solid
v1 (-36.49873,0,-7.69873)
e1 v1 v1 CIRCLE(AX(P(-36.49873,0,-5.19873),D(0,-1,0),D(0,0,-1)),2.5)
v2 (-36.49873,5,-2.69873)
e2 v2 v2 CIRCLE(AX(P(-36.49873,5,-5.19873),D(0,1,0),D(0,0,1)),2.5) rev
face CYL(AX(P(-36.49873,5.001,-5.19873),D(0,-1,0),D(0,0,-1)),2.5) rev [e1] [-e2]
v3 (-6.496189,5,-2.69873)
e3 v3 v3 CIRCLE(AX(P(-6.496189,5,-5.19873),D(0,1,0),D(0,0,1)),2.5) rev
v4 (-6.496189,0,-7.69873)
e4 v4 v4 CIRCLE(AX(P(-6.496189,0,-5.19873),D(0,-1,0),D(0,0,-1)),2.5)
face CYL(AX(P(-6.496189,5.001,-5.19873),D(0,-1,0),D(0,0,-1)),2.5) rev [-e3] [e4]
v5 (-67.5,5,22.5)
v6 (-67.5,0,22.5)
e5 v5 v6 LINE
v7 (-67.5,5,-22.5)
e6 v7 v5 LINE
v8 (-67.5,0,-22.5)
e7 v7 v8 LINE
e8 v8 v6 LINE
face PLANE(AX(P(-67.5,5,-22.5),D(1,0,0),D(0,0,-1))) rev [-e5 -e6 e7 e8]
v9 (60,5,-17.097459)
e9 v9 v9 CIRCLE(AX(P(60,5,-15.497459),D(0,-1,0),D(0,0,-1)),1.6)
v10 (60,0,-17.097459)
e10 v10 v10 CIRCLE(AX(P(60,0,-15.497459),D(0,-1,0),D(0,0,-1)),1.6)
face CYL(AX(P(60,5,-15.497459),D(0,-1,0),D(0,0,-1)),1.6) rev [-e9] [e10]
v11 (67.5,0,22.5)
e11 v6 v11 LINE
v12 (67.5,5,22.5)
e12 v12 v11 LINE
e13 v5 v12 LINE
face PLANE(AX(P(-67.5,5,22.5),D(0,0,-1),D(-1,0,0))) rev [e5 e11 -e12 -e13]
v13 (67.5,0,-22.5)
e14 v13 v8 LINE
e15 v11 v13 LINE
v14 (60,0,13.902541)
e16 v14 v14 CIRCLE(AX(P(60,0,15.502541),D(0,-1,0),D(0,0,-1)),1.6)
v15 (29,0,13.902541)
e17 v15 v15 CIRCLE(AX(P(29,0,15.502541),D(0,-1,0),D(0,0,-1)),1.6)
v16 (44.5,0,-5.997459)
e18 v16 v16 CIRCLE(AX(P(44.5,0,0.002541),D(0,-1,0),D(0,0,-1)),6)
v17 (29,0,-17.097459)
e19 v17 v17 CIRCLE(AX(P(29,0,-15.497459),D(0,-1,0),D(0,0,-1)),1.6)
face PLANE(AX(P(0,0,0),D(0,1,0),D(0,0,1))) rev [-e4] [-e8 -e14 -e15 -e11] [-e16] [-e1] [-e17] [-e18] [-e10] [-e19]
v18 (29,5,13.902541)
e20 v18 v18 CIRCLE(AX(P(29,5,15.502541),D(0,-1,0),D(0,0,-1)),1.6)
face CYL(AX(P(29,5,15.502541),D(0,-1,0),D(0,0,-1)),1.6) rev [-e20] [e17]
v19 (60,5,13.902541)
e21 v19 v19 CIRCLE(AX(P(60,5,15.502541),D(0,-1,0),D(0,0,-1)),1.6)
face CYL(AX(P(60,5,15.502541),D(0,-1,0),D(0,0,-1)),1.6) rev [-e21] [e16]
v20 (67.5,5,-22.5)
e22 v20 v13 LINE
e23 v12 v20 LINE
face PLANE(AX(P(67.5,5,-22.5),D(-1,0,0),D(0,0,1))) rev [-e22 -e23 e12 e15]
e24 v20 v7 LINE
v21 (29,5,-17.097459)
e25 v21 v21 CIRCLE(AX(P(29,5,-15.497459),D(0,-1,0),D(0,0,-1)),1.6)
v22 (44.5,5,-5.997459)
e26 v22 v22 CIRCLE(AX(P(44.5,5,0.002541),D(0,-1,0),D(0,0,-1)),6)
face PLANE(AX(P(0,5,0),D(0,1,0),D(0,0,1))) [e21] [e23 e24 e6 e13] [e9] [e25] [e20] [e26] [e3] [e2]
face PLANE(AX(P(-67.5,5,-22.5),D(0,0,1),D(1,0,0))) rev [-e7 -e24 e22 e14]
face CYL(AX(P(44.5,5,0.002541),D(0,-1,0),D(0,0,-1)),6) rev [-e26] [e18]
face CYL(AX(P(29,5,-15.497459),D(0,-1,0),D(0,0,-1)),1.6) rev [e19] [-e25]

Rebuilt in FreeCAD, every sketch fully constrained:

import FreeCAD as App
import Part
import Sketcher
from FreeCAD import Vector

doc = App.newDocument("Part")
params = doc.addObject("Spreadsheet::Sheet", "Params")
for row, (alias, value) in enumerate([
    ("sketch1_width", "135 mm"),
    ("sketch1_height", "45 mm"),
    ("pad1_length", "5 mm"),
    ("sketch2_diameter", "5 mm"),
    ("sketch3_diameter", "5 mm"),
    ("sketch4_diameter", "12 mm"),
    ("sketch4_diameter2", "3.2 mm"),
], start=1):
    params.set(f"A{row}", alias)
    params.set(f"B{row}", "=" + value)
    params.setAlias(f"B{row}", alias)

body = doc.addObject("PartDesign::Body", "Body")

# Sketch on XZ plane
sketch1 = doc.addObject("Sketcher::SketchObject", "Sketch")
body.addObject(sketch1)
sketch1.AttachmentSupport = (doc.XZ_Plane, [""])
sketch1.MapMode = "FlatFace"
sketch1.addGeometry([
    Part.LineSegment(Vector(-68, -22, 0), Vector(-68, 22, 0)),
    Part.LineSegment(Vector(-68, 22, 0), Vector(68, 22, 0)),
    Part.LineSegment(Vector(68, 22, 0), Vector(68, -22, 0)),
    Part.LineSegment(Vector(68, -22, 0), Vector(-68, -22, 0)),
], False)
sketch1.addConstraint([
    Sketcher.Constraint("Coincident", 0, 2, 1, 1),
    Sketcher.Constraint("Coincident", 1, 2, 2, 1),
    Sketcher.Constraint("Coincident", 2, 2, 3, 1),
    Sketcher.Constraint("Coincident", 3, 2, 0, 1),
    Sketcher.Constraint("Vertical", 0),
    Sketcher.Constraint("Horizontal", 1),
    Sketcher.Constraint("Vertical", 2),
    Sketcher.Constraint("Horizontal", 3),
    Sketcher.Constraint("Symmetric", 0, 2, 2, 2, -1, 1),
    Sketcher.Constraint("DistanceX", 1, 1, 1, 2, 135.0),
    Sketcher.Constraint("DistanceY", 0, 1, 0, 2, 45.0),
])
sketch1.setExpression("Constraints[9]", "Params.sketch1_width")
sketch1.setExpression("Constraints[10]", "Params.sketch1_height")
pad1 = doc.addObject("PartDesign::Pad", "Pad")
body.addObject(pad1)
pad1.Profile = sketch1
pad1.setExpression("Length", "Params.pad1_length")
pad1.Reversed = True

# Sketch on XZ plane
sketch2 = doc.addObject("Sketcher::SketchObject", "Sketch001")
body.addObject(sketch2)
sketch2.AttachmentSupport = (doc.XZ_Plane, [""])
sketch2.MapMode = "FlatFace"
sketch2.addGeometry(Part.Circle(Vector(-36.5, -5.2, 0), Vector(0, 0, 1), 2.5), False)
sketch2.addConstraint([
    Sketcher.Constraint("Diameter", 0, 5.0),
    Sketcher.Constraint("DistanceX", 0, 3, -1, 1, 36.49873),
    Sketcher.Constraint("DistanceY", 0, 3, -1, 1, 5.19873),
])
sketch2.setExpression("Constraints[0]", "Params.sketch2_diameter")
pocket1 = doc.addObject("PartDesign::Pocket", "Pocket")
body.addObject(pocket1)
pocket1.Profile = sketch2
pocket1.Type = "UpToFirst"

# Sketch on XZ plane
sketch3 = doc.addObject("Sketcher::SketchObject", "Sketch002")
body.addObject(sketch3)
sketch3.AttachmentSupport = (doc.XZ_Plane, [""])
sketch3.MapMode = "FlatFace"
sketch3.addGeometry(Part.Circle(Vector(-6.5, -5.2, 0), Vector(0, 0, 1), 2.5), False)
sketch3.addConstraint([
    Sketcher.Constraint("Diameter", 0, 5.0),
    Sketcher.Constraint("DistanceX", 0, 3, -1, 1, 6.496189),
    Sketcher.Constraint("DistanceY", 0, 3, -1, 1, 5.19873),
])
sketch3.setExpression("Constraints[0]", "Params.sketch3_diameter")
pocket2 = doc.addObject("PartDesign::Pocket", "Pocket001")
body.addObject(pocket2)
pocket2.Profile = sketch3
pocket2.Type = "UpToFirst"

# Sketch on XZ plane
sketch4 = doc.addObject("Sketcher::SketchObject", "Sketch003")
body.addObject(sketch4)
sketch4.AttachmentSupport = (doc.XZ_Plane, [""])
sketch4.MapMode = "FlatFace"
sketch4.addGeometry([
    Part.Circle(Vector(44.5, 0, 0), Vector(0, 0, 1), 6),  # 0
    Part.Circle(Vector(60, 15.5, 0), Vector(0, 0, 1), 1.6),  # 1
    Part.Circle(Vector(29, 15.5, 0), Vector(0, 0, 1), 1.6),  # 2
    Part.Circle(Vector(29, -15.5, 0), Vector(0, 0, 1), 1.6),  # 3
    Part.Circle(Vector(60, -15.5, 0), Vector(0, 0, 1), 1.6),  # 4
], False)
sketch4.addConstraint([
    Sketcher.Constraint("Equal", 1, 2),
    Sketcher.Constraint("Equal", 2, 3),
    Sketcher.Constraint("Equal", 3, 4),
    Sketcher.Constraint("Horizontal", 1, 3, 2, 3),
    Sketcher.Constraint("Horizontal", 3, 3, 4, 3),
    Sketcher.Constraint("Vertical", 2, 3, 3, 3),
    Sketcher.Constraint("Vertical", 1, 3, 4, 3),
    Sketcher.Constraint("Diameter", 0, 12.0),
    Sketcher.Constraint("Diameter", 1, 3.2),
    Sketcher.Constraint("DistanceX", -1, 1, 1, 3, 60.0),
    Sketcher.Constraint("DistanceX", -1, 1, 2, 3, 29.0),
    Sketcher.Constraint("DistanceY", 3, 3, 2, 3, 31.0),
    Sketcher.Constraint("DistanceX", -1, 1, 0, 3, 44.5),
    Sketcher.Constraint("DistanceY", 0, 3, 1, 3, 15.5),
    Sketcher.Constraint("DistanceY", -1, 1, 0, 3, 0.002541),
])
sketch4.setExpression("Constraints[7]", "Params.sketch4_diameter")
sketch4.setExpression("Constraints[8]", "Params.sketch4_diameter2")
pocket3 = doc.addObject("PartDesign::Pocket", "Pocket002")
body.addObject(pocket3)
pocket3.Profile = sketch4
pocket3.Type = "ThroughAll"

doc.recompute()
